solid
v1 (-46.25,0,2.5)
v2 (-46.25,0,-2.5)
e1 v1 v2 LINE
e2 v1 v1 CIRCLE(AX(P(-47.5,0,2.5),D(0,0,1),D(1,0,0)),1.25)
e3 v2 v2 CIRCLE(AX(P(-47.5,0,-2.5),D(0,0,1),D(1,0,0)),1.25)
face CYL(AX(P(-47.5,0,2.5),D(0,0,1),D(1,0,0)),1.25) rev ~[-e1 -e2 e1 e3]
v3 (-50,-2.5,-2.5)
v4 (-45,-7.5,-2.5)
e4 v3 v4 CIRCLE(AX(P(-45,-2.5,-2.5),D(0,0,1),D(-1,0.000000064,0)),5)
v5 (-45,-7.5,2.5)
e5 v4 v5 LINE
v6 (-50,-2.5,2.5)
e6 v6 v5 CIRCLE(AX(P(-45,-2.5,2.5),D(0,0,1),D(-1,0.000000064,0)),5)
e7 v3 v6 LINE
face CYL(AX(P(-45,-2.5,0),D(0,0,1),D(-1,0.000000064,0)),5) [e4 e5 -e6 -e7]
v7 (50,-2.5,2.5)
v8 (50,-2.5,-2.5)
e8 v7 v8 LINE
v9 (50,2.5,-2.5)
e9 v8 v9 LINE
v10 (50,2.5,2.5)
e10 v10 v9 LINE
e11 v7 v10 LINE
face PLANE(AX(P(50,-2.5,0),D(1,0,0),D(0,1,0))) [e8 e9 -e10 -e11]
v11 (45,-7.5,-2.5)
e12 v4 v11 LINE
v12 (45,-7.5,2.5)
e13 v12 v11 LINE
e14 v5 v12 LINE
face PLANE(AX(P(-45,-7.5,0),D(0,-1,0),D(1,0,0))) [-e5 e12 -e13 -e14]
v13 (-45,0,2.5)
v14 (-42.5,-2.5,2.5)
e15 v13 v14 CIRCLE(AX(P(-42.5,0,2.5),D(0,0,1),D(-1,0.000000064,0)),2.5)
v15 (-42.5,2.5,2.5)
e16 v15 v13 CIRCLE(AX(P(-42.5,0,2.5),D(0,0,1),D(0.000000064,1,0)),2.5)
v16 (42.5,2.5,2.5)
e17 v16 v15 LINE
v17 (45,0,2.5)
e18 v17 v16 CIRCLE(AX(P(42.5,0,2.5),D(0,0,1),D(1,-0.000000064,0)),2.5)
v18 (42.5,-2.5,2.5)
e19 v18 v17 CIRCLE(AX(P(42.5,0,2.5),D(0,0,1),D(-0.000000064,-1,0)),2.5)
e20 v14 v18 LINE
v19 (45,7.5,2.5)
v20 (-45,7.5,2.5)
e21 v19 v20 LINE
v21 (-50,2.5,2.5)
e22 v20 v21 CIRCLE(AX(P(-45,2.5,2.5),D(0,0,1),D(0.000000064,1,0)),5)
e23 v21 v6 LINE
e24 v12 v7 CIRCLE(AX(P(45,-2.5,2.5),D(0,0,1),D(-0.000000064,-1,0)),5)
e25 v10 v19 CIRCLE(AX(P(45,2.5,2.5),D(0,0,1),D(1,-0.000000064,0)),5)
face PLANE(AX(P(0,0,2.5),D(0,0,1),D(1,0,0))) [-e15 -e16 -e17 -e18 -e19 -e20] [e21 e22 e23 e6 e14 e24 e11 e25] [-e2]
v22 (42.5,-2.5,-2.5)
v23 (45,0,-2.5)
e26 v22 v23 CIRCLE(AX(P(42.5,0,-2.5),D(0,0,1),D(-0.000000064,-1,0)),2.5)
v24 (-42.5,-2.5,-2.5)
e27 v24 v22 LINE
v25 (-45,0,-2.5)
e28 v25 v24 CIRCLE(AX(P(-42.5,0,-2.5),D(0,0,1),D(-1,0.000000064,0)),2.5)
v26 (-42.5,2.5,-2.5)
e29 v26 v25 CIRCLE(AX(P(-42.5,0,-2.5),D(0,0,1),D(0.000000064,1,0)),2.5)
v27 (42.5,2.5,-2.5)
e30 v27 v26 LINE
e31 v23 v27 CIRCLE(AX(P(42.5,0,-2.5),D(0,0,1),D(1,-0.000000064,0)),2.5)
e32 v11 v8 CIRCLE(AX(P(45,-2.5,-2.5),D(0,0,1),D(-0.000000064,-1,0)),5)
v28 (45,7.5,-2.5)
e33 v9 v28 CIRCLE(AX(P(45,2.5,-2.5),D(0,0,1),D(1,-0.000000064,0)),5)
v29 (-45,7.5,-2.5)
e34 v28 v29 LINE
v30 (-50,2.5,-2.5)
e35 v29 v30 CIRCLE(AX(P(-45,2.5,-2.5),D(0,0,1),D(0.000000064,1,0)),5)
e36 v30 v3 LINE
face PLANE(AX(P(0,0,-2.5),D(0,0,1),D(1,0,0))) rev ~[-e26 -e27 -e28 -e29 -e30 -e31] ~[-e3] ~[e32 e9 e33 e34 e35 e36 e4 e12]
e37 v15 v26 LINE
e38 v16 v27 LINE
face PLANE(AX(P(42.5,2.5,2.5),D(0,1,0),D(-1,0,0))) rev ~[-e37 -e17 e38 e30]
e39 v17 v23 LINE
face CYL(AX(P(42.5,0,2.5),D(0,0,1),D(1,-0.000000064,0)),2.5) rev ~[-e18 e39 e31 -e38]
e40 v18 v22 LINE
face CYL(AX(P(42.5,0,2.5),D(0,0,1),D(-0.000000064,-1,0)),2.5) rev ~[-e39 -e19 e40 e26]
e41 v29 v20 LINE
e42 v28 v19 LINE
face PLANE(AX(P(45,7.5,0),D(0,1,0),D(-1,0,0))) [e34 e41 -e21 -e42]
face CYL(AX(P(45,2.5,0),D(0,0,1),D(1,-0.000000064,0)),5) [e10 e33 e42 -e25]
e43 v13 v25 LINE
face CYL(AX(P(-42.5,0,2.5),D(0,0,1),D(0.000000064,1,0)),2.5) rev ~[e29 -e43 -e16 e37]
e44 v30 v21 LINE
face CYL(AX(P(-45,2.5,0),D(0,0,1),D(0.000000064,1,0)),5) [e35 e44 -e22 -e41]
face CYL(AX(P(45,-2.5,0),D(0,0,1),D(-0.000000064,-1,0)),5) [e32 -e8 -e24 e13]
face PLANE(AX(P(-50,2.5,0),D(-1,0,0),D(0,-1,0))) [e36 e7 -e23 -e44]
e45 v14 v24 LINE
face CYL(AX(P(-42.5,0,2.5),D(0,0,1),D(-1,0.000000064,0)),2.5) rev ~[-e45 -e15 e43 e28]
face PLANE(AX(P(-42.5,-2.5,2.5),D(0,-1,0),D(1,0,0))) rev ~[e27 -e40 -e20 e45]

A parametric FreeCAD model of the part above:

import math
import FreeCAD as App
import Part
import Sketcher
from FreeCAD import Vector
Q = App.Units.Quantity

doc = App.newDocument("Part")
body = doc.addObject("PartDesign::Body", "Body")

sketch1 = body.newObject("Sketcher::SketchObject", "Sketch")
sketch1.AttachmentSupport = (doc.getObject("XY_Plane"), [""])
sketch1.MapMode = "FlatFace"
sketch1.addGeometry([
    Part.ArcOfCircle(Part.Circle(Vector(45, 2.5, 0), Vector(0, 0, 1), 5), math.radians(0), math.radians(90)),
    Part.LineSegment(Vector(45, 7.5, 0), Vector(-45, 7.5, 0)),
    Part.ArcOfCircle(Part.Circle(Vector(-45, 2.5, 0), Vector(0, 0, 1), 5), math.radians(90), math.radians(180)),
    Part.LineSegment(Vector(-50, 2.5, 0), Vector(-50, -2.5, 0)),
    Part.ArcOfCircle(Part.Circle(Vector(-45, -2.5, 0), Vector(0, 0, 1), 5), math.radians(180), math.radians(270)),
    Part.LineSegment(Vector(-45, -7.5, 0), Vector(45, -7.5, 0)),
    Part.ArcOfCircle(Part.Circle(Vector(45, -2.5, 0), Vector(0, 0, 1), 5), math.radians(-90), math.radians(0)),
    Part.LineSegment(Vector(50, -2.5, 0), Vector(50, 2.5, 0)),
], False)
sketch1.addConstraint([
    Sketcher.Constraint("Tangent", 0, 2, 1, 1),
    Sketcher.Constraint("Tangent", 1, 2, 2, 1),
    Sketcher.Constraint("Tangent", 2, 2, 3, 1),
    Sketcher.Constraint("Tangent", 3, 2, 4, 1),
    Sketcher.Constraint("Tangent", 4, 2, 5, 1),
    Sketcher.Constraint("Tangent", 5, 2, 6, 1),
    Sketcher.Constraint("Tangent", 6, 2, 7, 1),
    Sketcher.Constraint("Tangent", 7, 2, 0, 1),
    Sketcher.Constraint("Horizontal", 1),
    Sketcher.Constraint("Vertical", 3),
    Sketcher.Constraint("Horizontal", 5),
    Sketcher.Constraint("Vertical", 7),
    Sketcher.Constraint("Equal", 0, 2),
    Sketcher.Constraint("Equal", 2, 4),
    Sketcher.Constraint("Equal", 4, 6),
    Sketcher.Constraint("Symmetric", 0, 3, 4, 3, -1, 1),
    Sketcher.Constraint("Radius", 0, Q("5 mm")),
    Sketcher.Constraint("DistanceX", 1, 2, 1, 1, Q("90 mm")),
    Sketcher.Constraint("DistanceY", 3, 2, 3, 1, Q("5 mm")),
])
pad1 = body.newObject("PartDesign::Pad", "Pad")
pad1.Profile = sketch1
pad1.Length = 5
pad1.Midplane = True

sketch2 = body.newObject("Sketcher::SketchObject", "Sketch001")
sketch2.AttachmentSupport = (doc.getObject("XY_Plane"), [""])
sketch2.MapMode = "FlatFace"
sketch2.AttachmentOffset = App.Placement(Vector(0, 0, 2.5), App.Rotation())
sketch2.addGeometry([
    Part.LineSegment(Vector(42.5, 2.5, 0), Vector(-42.5, 2.5, 0)),
    Part.ArcOfCircle(Part.Circle(Vector(-42.5, 0, 0), Vector(0, 0, 1), 2.5), math.radians(90), math.radians(180)),
    Part.ArcOfCircle(Part.Circle(Vector(-42.5, 0, 0), Vector(0, 0, 1), 2.5), math.radians(180), math.radians(270)),
    Part.LineSegment(Vector(-42.5, -2.5, 0), Vector(42.5, -2.5, 0)),
    Part.ArcOfCircle(Part.Circle(Vector(42.5, 0, 0), Vector(0, 0, 1), 2.5), math.radians(-90), math.radians(0)),
    Part.ArcOfCircle(Part.Circle(Vector(42.5, 0, 0), Vector(0, 0, 1), 2.5), math.radians(0), math.radians(90)),
], False)
sketch2.addConstraint([
    Sketcher.Constraint("Tangent", 0, 2, 1, 1),
    Sketcher.Constraint("Tangent", 1, 2, 2, 1),
    Sketcher.Constraint("Tangent", 2, 2, 3, 1),
    Sketcher.Constraint("Tangent", 3, 2, 4, 1),
    Sketcher.Constraint("Tangent", 4, 2, 5, 1),
    Sketcher.Constraint("Tangent", 5, 2, 0, 1),
    Sketcher.Constraint("Horizontal", 0),
    Sketcher.Constraint("Horizontal", 3),
    Sketcher.Constraint("Equal", 1, 2),
    Sketcher.Constraint("Equal", 2, 4),
    Sketcher.Constraint("Symmetric", 1, 3, 4, 3, -1, 1),
    Sketcher.Constraint("PointOnObject", 1, 2, -1),
    Sketcher.Constraint("PointOnObject", 4, 2, -1),
    Sketcher.Constraint("Radius", 1, Q("2.5 mm")),
    Sketcher.Constraint("DistanceX", 0, 2, 0, 1, Q("85 mm")),
])
pocket1 = body.newObject("PartDesign::Pocket", "Pocket")
pocket1.Profile = sketch2
pocket1.Type = "ThroughAll"

sketch3 = body.newObject("Sketcher::SketchObject", "Sketch002")
sketch3.AttachmentSupport = (doc.getObject("XY_Plane"), [""])
sketch3.MapMode = "FlatFace"
sketch3.AttachmentOffset = App.Placement(Vector(0, 0, 2.5), App.Rotation())
sketch3.addGeometry(Part.Circle(Vector(-47.5, 0, 0), Vector(0, 0, 1), 1.2), False)
sketch3.addConstraint([
    Sketcher.Constraint("PointOnObject", 0, 3, -1),
    Sketcher.Constraint("Diameter", 0, Q("2.5 mm")),
    Sketcher.Constraint("DistanceX", 0, 3, -1, 1, Q("47.5 mm")),
])
pocket2 = body.newObject("PartDesign::Pocket", "Pocket001")
pocket2.Profile = sketch3
pocket2.Type = "ThroughAll"

doc.recompute()
